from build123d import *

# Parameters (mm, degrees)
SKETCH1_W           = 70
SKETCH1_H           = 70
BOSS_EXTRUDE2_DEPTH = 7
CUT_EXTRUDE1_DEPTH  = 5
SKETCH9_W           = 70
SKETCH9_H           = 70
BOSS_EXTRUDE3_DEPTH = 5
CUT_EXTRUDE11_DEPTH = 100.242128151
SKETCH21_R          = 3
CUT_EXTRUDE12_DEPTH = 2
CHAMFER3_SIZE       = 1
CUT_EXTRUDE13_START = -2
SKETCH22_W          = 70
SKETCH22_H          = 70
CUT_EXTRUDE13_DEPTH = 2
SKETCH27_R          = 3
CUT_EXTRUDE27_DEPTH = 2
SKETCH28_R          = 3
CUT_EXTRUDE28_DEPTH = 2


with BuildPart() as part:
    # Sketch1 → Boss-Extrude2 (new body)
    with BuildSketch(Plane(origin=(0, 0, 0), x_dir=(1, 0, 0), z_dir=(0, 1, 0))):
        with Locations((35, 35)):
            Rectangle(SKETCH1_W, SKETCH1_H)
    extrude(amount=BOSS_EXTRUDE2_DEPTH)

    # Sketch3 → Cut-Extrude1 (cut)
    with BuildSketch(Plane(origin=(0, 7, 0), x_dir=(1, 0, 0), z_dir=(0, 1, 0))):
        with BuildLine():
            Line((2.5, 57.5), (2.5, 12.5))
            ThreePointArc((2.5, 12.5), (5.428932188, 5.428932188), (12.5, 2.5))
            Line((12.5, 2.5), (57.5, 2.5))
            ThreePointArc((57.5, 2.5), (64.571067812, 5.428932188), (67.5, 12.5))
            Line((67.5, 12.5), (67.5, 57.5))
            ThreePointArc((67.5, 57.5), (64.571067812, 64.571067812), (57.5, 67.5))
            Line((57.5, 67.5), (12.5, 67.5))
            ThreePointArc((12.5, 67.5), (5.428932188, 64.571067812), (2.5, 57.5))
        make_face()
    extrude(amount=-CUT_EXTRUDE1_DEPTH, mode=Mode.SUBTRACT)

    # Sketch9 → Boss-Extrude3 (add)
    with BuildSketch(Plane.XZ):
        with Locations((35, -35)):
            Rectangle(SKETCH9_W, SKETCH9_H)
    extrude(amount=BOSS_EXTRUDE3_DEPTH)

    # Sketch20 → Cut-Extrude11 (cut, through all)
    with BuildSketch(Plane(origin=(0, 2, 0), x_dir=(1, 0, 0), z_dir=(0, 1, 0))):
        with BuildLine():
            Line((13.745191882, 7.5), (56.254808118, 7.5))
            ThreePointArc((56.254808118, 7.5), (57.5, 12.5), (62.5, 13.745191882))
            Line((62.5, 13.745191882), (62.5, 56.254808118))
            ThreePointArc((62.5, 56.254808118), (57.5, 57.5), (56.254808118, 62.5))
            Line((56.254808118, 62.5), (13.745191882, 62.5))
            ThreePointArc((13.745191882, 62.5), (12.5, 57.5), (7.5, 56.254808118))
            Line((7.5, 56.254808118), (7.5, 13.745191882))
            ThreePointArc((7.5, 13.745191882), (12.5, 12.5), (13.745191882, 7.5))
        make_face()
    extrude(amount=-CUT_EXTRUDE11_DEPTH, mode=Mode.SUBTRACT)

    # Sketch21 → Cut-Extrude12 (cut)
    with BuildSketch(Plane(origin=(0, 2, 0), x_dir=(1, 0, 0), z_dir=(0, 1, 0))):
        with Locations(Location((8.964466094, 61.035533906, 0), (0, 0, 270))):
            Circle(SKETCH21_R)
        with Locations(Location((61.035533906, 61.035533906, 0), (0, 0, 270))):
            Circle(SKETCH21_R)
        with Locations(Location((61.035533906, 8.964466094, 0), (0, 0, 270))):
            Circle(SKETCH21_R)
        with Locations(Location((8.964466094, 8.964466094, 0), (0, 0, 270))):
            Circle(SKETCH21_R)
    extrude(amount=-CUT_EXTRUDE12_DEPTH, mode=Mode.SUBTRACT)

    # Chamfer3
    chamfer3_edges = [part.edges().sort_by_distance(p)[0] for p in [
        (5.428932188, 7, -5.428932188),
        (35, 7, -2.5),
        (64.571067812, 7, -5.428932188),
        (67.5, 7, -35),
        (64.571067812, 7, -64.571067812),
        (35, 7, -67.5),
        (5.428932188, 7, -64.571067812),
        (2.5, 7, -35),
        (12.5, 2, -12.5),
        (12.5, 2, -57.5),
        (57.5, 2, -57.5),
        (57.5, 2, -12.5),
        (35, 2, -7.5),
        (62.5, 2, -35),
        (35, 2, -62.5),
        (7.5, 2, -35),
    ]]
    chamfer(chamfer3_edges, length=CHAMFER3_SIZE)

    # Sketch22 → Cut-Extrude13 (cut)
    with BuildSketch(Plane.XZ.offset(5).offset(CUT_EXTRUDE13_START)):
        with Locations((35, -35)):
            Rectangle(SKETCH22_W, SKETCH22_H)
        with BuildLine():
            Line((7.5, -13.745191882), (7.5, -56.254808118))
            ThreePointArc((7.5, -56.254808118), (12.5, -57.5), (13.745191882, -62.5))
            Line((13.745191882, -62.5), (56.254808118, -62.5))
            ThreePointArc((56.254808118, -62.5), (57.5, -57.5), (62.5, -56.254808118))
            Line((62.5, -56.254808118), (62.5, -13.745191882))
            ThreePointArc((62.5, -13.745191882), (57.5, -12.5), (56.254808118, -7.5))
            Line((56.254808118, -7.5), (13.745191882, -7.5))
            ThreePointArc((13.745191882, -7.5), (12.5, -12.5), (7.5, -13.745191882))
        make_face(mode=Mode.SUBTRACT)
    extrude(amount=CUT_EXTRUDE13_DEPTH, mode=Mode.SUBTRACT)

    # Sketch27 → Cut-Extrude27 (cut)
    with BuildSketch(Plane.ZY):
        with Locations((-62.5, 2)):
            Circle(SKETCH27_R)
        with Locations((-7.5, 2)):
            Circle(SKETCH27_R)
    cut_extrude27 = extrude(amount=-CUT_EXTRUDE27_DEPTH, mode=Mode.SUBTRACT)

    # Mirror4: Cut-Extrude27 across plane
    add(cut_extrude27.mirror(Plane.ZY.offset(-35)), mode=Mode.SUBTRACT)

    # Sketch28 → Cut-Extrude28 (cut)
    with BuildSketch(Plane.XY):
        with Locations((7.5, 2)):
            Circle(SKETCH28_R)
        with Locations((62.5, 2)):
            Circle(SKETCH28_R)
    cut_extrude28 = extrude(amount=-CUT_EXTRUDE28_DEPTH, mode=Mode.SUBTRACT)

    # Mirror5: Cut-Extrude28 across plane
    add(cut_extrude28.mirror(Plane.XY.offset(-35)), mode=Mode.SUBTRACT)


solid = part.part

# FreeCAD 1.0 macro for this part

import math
import FreeCAD as App
import Part
import Sketcher

V = App.Vector


def edges_at(feature, points):
    """Names of the edges that pass closest to the given points."""
    edges = feature.Shape.Edges
    near = lambda p: min(range(len(edges)), key=lambda i: edges[i].distToShape(Part.Vertex(*p))[0])
    return sorted({f"Edge{near(p) + 1}" for p in points})


def add_polygon(sketch, points):
    """Adds a closed chain of lines whose ends are joined by coincident constraints."""
    first, n = sketch.GeometryCount, len(points)
    for a, b in zip(points, points[1:] + points[:1]):
        sketch.addGeometry(Part.LineSegment(App.Vector(*a, 0), App.Vector(*b, 0)), False)
    for i in range(n):
        sketch.addConstraint(Sketcher.Constraint("Coincident", first + i, 2, first + (i + 1) % n, 1))

doc = App.newDocument("Part")
body = doc.addObject("PartDesign::Body", "Body")

# Sketch on XZ plane
sketch1 = body.newObject("Sketcher::SketchObject", "Sketch")
sketch1.AttachmentSupport = (doc.getObject("XZ_Plane"), [""])
sketch1.MapMode = "FlatFace"
add_polygon(sketch1, [(0, -70), (0, 0), (70, 0), (70, -70)])  # lines 0-3
sketch1.addConstraint([
    Sketcher.Constraint("Vertical", 0),
    Sketcher.Constraint("Horizontal", 1),
    Sketcher.Constraint("Vertical", 2),
    Sketcher.Constraint("Horizontal", 3),
    Sketcher.Constraint("Coincident", 0, 2, -1, 1),
    Sketcher.Constraint("Equal", 3, 0),
    Sketcher.Constraint("DistanceX", 1, 1, 1, 2, 70.0),
])
pad1 = body.newObject("PartDesign::Pad", "Pad")
pad1.Profile = sketch1
pad1.Length = 7
pad1.Reversed = True

# Sketch on XZ plane
sketch2 = body.newObject("Sketcher::SketchObject", "Sketch001")
sketch2.AttachmentSupport = (doc.getObject("XZ_Plane"), [""])
sketch2.MapMode = "FlatFace"
sketch2.AttachmentOffset = App.Placement(V(0, 0, -7), App.Rotation())
sketch2.addGeometry([
    Part.LineSegment(V(2, -58, 0), V(2, -12, 0)),  # 0
    Part.ArcOfCircle(Part.Circle(V(12, -12, 0), V(0, 0, 1), 10), math.radians(90), math.radians(180)),  # 1
    Part.LineSegment(V(12, -2, 0), V(58, -2, 0)),  # 2
    Part.ArcOfCircle(Part.Circle(V(58, -12, 0), V(0, 0, 1), 10), math.radians(0), math.radians(90)),  # 3
    Part.LineSegment(V(68, -12, 0), V(68, -58, 0)),  # 4
    Part.ArcOfCircle(Part.Circle(V(58, -58, 0), V(0, 0, 1), 10), math.radians(-90), math.radians(0)),  # 5
    Part.LineSegment(V(58, -68, 0), V(12, -68, 0)),  # 6
    Part.ArcOfCircle(Part.Circle(V(12, -58, 0), V(0, 0, 1), 10), math.radians(180), math.radians(270)),  # 7
], False)
sketch2.addConstraint([
    Sketcher.Constraint("Tangent", 0, 2, 1, 2),
    Sketcher.Constraint("Tangent", 1, 1, 2, 1),
    Sketcher.Constraint("Tangent", 2, 2, 3, 2),
    Sketcher.Constraint("Tangent", 3, 1, 4, 1),
    Sketcher.Constraint("Tangent", 4, 2, 5, 2),
    Sketcher.Constraint("Tangent", 5, 1, 6, 1),
    Sketcher.Constraint("Tangent", 6, 2, 7, 2),
    Sketcher.Constraint("Tangent", 7, 1, 0, 1),
    Sketcher.Constraint("Vertical", 0),
    Sketcher.Constraint("Horizontal", 2),
    Sketcher.Constraint("Vertical", 4),
    Sketcher.Constraint("Horizontal", 6),
    Sketcher.Constraint("Equal", 1, 3),
    Sketcher.Constraint("Equal", 3, 5),
    Sketcher.Constraint("Equal", 5, 7),
    Sketcher.Constraint("Equal", 6, 0),
    Sketcher.Constraint("Radius", 1, 10.0),
    Sketcher.Constraint("DistanceX", 2, 1, 2, 2, 45.0),
    Sketcher.Constraint("DistanceX", -1, 1, 1, 3, 12.5),
    Sketcher.Constraint("DistanceY", 1, 3, -1, 1, 12.5),
])
pocket1 = body.newObject("PartDesign::Pocket", "Pocket")
pocket1.Profile = sketch2
pocket1.Length = 5
pocket1.Reversed = True

# Sketch on XZ plane
sketch3 = body.newObject("Sketcher::SketchObject", "Sketch002")
sketch3.AttachmentSupport = (doc.getObject("XZ_Plane"), [""])
sketch3.MapMode = "FlatFace"
add_polygon(sketch3, [(0, 0), (0, -70), (70, -70), (70, 0)])  # lines 0-3
sketch3.addConstraint([
    Sketcher.Constraint("Vertical", 0),
    Sketcher.Constraint("Horizontal", 1),
    Sketcher.Constraint("Vertical", 2),
    Sketcher.Constraint("Horizontal", 3),
    Sketcher.Constraint("Coincident", 3, 2, -1, 1),
    Sketcher.Constraint("Equal", 3, 0),
    Sketcher.Constraint("DistanceX", 1, 1, 1, 2, 70.0),
])
pad2 = body.newObject("PartDesign::Pad", "Pad001")
pad2.Profile = sketch3
pad2.Length = 5

# Sketch on XZ plane
sketch4 = body.newObject("Sketcher::SketchObject", "Sketch003")
sketch4.AttachmentSupport = (doc.getObject("XZ_Plane"), [""])
sketch4.MapMode = "FlatFace"
sketch4.AttachmentOffset = App.Placement(V(0, 0, -2), App.Rotation())
sketch4.addGeometry([
    Part.LineSegment(V(14, -8, 0), V(56, -8, 0)),  # 0
    Part.ArcOfCircle(Part.Circle(V(61, -9, 0), V(0, 0, 1), 5), math.radians(163), math.radians(287)),  # 1
    Part.LineSegment(V(62, -14, 0), V(62, -56, 0)),  # 2
    Part.ArcOfCircle(Part.Circle(V(61, -61, 0), V(0, 0, 1), 5), math.radians(73), math.radians(197)),  # 3
    Part.LineSegment(V(56, -62, 0), V(14, -62, 0)),  # 4
    Part.ArcOfCircle(Part.Circle(V(9, -61, 0), V(0, 0, 1), 5), math.radians(-17), math.radians(107)),  # 5
    Part.LineSegment(V(8, -56, 0), V(8, -14, 0)),  # 6
    Part.ArcOfCircle(Part.Circle(V(9, -9, 0), V(0, 0, 1), 5), math.radians(-107), math.radians(17)),  # 7
], False)
sketch4.addConstraint([
    Sketcher.Constraint("Coincident", 0, 2, 1, 1),
    Sketcher.Constraint("Coincident", 1, 2, 2, 1),
    Sketcher.Constraint("Coincident", 2, 2, 3, 1),
    Sketcher.Constraint("Coincident", 3, 2, 4, 1),
    Sketcher.Constraint("Coincident", 4, 2, 5, 1),
    Sketcher.Constraint("Coincident", 5, 2, 6, 1),
    Sketcher.Constraint("Coincident", 6, 2, 7, 1),
    Sketcher.Constraint("Coincident", 7, 2, 0, 1),
    Sketcher.Constraint("Horizontal", 0),
    Sketcher.Constraint("Vertical", 2),
    Sketcher.Constraint("Horizontal", 4),
    Sketcher.Constraint("Vertical", 6),
    Sketcher.Constraint("Equal", 1, 3),
    Sketcher.Constraint("Equal", 3, 5),
    Sketcher.Constraint("Equal", 5, 7),
    Sketcher.Constraint("Horizontal", 3, 3, 5, 3),
    Sketcher.Constraint("Horizontal", 1, 3, 7, 3),
    Sketcher.Constraint("Horizontal", 2, 2, 5, 2),
    Sketcher.Constraint("Horizontal", 1, 2, 6, 2),
    Sketcher.Constraint("Vertical", 1, 3, 3, 3),
    Sketcher.Constraint("Vertical", 0, 2, 3, 2),
    Sketcher.Constraint("Equal", 4, 2),
    Sketcher.Constraint("Radius", 1, 5.0),
    Sketcher.Constraint("DistanceY", 0, 2, -1, 1, 7.5),
    Sketcher.Constraint("DistanceX", -1, 1, 1, 2, 62.5),
    Sketcher.Constraint("DistanceY", 3, 2, -1, 1, 62.5),
    Sketcher.Constraint("DistanceX", -1, 1, 5, 2, 7.5),
    Sketcher.Constraint("DistanceX", 0, 1, 0, 2, 42.509616),
])
pocket2 = body.newObject("PartDesign::Pocket", "Pocket001")
pocket2.Profile = sketch4
pocket2.Type = "ThroughAll"
pocket2.Reversed = True

# Sketch on XZ plane
sketch5 = body.newObject("Sketcher::SketchObject", "Sketch004")
sketch5.AttachmentSupport = (doc.getObject("XZ_Plane"), [""])
sketch5.MapMode = "FlatFace"
sketch5.AttachmentOffset = App.Placement(V(0, 0, -2), App.Rotation())
sketch5.addGeometry([
    Part.Circle(V(9, -61, 0), V(0, 0, 1), 3),
    Part.Circle(V(61, -61, 0), V(0, 0, 1), 3),
    Part.Circle(V(61, -9, 0), V(0, 0, 1), 3),
    Part.Circle(V(9, -9, 0), V(0, 0, 1), 3),
], False)
sketch5.addConstraint([
    Sketcher.Constraint("Equal", 0, 1),
    Sketcher.Constraint("Equal", 1, 2),
    Sketcher.Constraint("Equal", 2, 3),
    Sketcher.Constraint("Horizontal", 0, 3, 1, 3),
    Sketcher.Constraint("Horizontal", 2, 3, 3, 3),
    Sketcher.Constraint("Vertical", 1, 3, 2, 3),
    Sketcher.Constraint("Vertical", 0, 3, 3, 3),
    Sketcher.Constraint("Diameter", 0, 6.0),
    Sketcher.Constraint("DistanceX", -1, 1, 0, 3, 8.964466),
    Sketcher.Constraint("DistanceY", 0, 3, -1, 1, 61.035534),
    Sketcher.Constraint("DistanceX", -1, 1, 1, 3, 61.035534),
    Sketcher.Constraint("DistanceY", 2, 3, -1, 1, 8.964466),
])
pocket3 = body.newObject("PartDesign::Pocket", "Pocket002")
pocket3.Profile = sketch5
pocket3.Length = 2
pocket3.Reversed = True
doc.recompute()

chamfer = body.newObject("PartDesign::Chamfer", "Chamfer")
chamfer.Base = (pocket3, edges_at(pocket3, [
    (5.429, 7, -5.429),
    (35, 7, -2.5),
    (64.571, 7, -5.429),
    (67.5, 7, -35),
    (64.571, 7, -64.571),
    (35, 7, -67.5),
    (5.429, 7, -64.571),
    (2.5, 7, -35),
    (12.5, 2, -12.5),
    (12.5, 2, -57.5),
    (57.5, 2, -57.5),
    (57.5, 2, -12.5),
    (35, 2, -7.5),
    (62.5, 2, -35),
    (35, 2, -62.5),
    (7.5, 2, -35),
]))
chamfer.Size = 1

# Sketch on XZ plane
sketch6 = body.newObject("Sketcher::SketchObject", "Sketch005")
sketch6.AttachmentSupport = (doc.getObject("XZ_Plane"), [""])
sketch6.MapMode = "FlatFace"
sketch6.AttachmentOffset = App.Placement(V(0, 0, 3), App.Rotation())
add_polygon(sketch6, [(0, 0), (0, -70), (70, -70), (70, 0)])  # lines 0-3
sketch6.addGeometry(Part.LineSegment(V(8, -56, 0), V(8, -14, 0)), False)  # 4
sketch6.addGeometry(Part.ArcOfCircle(Part.Circle(V(9, -9, 0), V(0, 0, 1), 5), math.radians(-107), math.radians(17)), False)  # 5
sketch6.addGeometry(Part.LineSegment(V(14, -8, 0), V(56, -8, 0)), False)  # 6
sketch6.addGeometry(Part.ArcOfCircle(Part.Circle(V(61, -9, 0), V(0, 0, 1), 5), math.radians(163), math.radians(287)), False)  # 7
sketch6.addGeometry(Part.LineSegment(V(62, -14, 0), V(62, -56, 0)), False)  # 8
sketch6.addGeometry(Part.ArcOfCircle(Part.Circle(V(61, -61, 0), V(0, 0, 1), 5), math.radians(73), math.radians(197)), False)  # 9
sketch6.addGeometry(Part.LineSegment(V(56, -62, 0), V(14, -62, 0)), False)  # 10
sketch6.addGeometry(Part.ArcOfCircle(Part.Circle(V(9, -61, 0), V(0, 0, 1), 5), math.radians(-17), math.radians(107)), False)  # 11
sketch6.addConstraint([
    Sketcher.Constraint("Coincident", 4, 2, 5, 1),
    Sketcher.Constraint("Coincident", 5, 2, 6, 1),
    Sketcher.Constraint("Coincident", 6, 2, 7, 1),
    Sketcher.Constraint("Coincident", 7, 2, 8, 1),
    Sketcher.Constraint("Coincident", 8, 2, 9, 1),
    Sketcher.Constraint("Coincident", 9, 2, 10, 1),
    Sketcher.Constraint("Coincident", 10, 2, 11, 1),
    Sketcher.Constraint("Coincident", 11, 2, 4, 1),
    Sketcher.Constraint("Vertical", 0),
    Sketcher.Constraint("Horizontal", 1),
    Sketcher.Constraint("Vertical", 2),
    Sketcher.Constraint("Horizontal", 3),
    Sketcher.Constraint("Vertical", 4),
    Sketcher.Constraint("Horizontal", 6),
    Sketcher.Constraint("Vertical", 8),
    Sketcher.Constraint("Horizontal", 10),
    Sketcher.Constraint("Coincident", 3, 2, -1, 1),
    Sketcher.Constraint("Equal", 5, 7),
    Sketcher.Constraint("Equal", 7, 9),
    Sketcher.Constraint("Equal", 9, 11),
    Sketcher.Constraint("Horizontal", 5, 3, 7, 3),
    Sketcher.Constraint("Horizontal", 9, 3, 11, 3),
    Sketcher.Constraint("Horizontal", 4, 2, 7, 2),
    Sketcher.Constraint("Horizontal", 8, 2, 11, 2),
    Sketcher.Constraint("Vertical", 7, 3, 9, 3),
    Sketcher.Constraint("Vertical", 6, 2, 9, 2),
    Sketcher.Constraint("Equal", 3, 0),
    Sketcher.Constraint("Equal", 10, 4),
    Sketcher.Constraint("Radius", 5, 5.0),
    Sketcher.Constraint("DistanceX", 1, 1, 1, 2, 70.0),
    Sketcher.Constraint("DistanceX", -1, 1, 4, 2, 7.5),
    Sketcher.Constraint("DistanceY", 5, 2, -1, 1, 7.5),
    Sketcher.Constraint("DistanceX", -1, 1, 7, 2, 62.5),
    Sketcher.Constraint("DistanceY", 9, 2, -1, 1, 62.5),
    Sketcher.Constraint("DistanceX", 6, 1, 6, 2, 42.509616),
])
pocket4 = body.newObject("PartDesign::Pocket", "Pocket003")
pocket4.Profile = sketch6
pocket4.Length = 2
pocket4.Reversed = True

# Sketch on YZ plane
sketch7 = body.newObject("Sketcher::SketchObject", "Sketch006")
sketch7.AttachmentSupport = (doc.getObject("YZ_Plane"), [""])
sketch7.MapMode = "FlatFace"
sketch7.addGeometry([
    Part.Circle(V(2, -62.5, 0), V(0, 0, 1), 3),
    Part.Circle(V(2, -7.5, 0), V(0, 0, 1), 3),
], False)
sketch7.addConstraint([
    Sketcher.Constraint("Equal", 0, 1),
    Sketcher.Constraint("Vertical", 0, 3, 1, 3),
    Sketcher.Constraint("Diameter", 0, 6.0),
    Sketcher.Constraint("DistanceX", -1, 1, 0, 3, 2.0),
    Sketcher.Constraint("DistanceY", 0, 3, 1, 3, 55.0),
    Sketcher.Constraint("DistanceY", 0, 3, -1, 1, 62.5),
])
pocket5 = body.newObject("PartDesign::Pocket", "Pocket004")
pocket5.Profile = sketch7
pocket5.Length = 2
pocket5.Reversed = True
doc.recompute()

datumplane = body.newObject("PartDesign::Plane", "DatumPlane")
datumplane.AttachmentSupport = (doc.getObject("YZ_Plane"), [""])
datumplane.MapMode = "FlatFace"
datumplane.AttachmentOffset = App.Placement(V(0, 0, 35), App.Rotation())
mirrored = body.newObject("PartDesign::Mirrored", "Mirrored")
mirrored.Originals = [pocket5]
mirrored.MirrorPlane = (datumplane, [""])
body.Tip = mirrored

# Sketch on XY plane
sketch8 = body.newObject("Sketcher::SketchObject", "Sketch007")
sketch8.AttachmentSupport = (doc.getObject("XY_Plane"), [""])
sketch8.MapMode = "FlatFace"
sketch8.addGeometry([
    Part.Circle(V(7.5, 2, 0), V(0, 0, 1), 3),
    Part.Circle(V(62.5, 2, 0), V(0, 0, 1), 3),
], False)
sketch8.addConstraint([
    Sketcher.Constraint("Equal", 0, 1),
    Sketcher.Constraint("Horizontal", 0, 3, 1, 3),
    Sketcher.Constraint("Diameter", 0, 6.0),
    Sketcher.Constraint("DistanceY", -1, 1, 0, 3, 2.0),
    Sketcher.Constraint("DistanceX", 0, 3, 1, 3, 55.0),
    Sketcher.Constraint("DistanceX", -1, 1, 0, 3, 7.5),
])
pocket6 = body.newObject("PartDesign::Pocket", "Pocket005")
pocket6.Profile = sketch8
pocket6.Length = 2
doc.recompute()

datumplane2 = body.newObject("PartDesign::Plane", "DatumPlane001")
datumplane2.AttachmentSupport = (doc.getObject("XY_Plane"), [""])
datumplane2.MapMode = "FlatFace"
datumplane2.AttachmentOffset = App.Placement(V(0, 0, -35), App.Rotation())
mirrored2 = body.newObject("PartDesign::Mirrored", "Mirrored001")
mirrored2.Originals = [pocket6]
mirrored2.MirrorPlane = (datumplane2, [""])
body.Tip = mirrored2

doc.recompute()
